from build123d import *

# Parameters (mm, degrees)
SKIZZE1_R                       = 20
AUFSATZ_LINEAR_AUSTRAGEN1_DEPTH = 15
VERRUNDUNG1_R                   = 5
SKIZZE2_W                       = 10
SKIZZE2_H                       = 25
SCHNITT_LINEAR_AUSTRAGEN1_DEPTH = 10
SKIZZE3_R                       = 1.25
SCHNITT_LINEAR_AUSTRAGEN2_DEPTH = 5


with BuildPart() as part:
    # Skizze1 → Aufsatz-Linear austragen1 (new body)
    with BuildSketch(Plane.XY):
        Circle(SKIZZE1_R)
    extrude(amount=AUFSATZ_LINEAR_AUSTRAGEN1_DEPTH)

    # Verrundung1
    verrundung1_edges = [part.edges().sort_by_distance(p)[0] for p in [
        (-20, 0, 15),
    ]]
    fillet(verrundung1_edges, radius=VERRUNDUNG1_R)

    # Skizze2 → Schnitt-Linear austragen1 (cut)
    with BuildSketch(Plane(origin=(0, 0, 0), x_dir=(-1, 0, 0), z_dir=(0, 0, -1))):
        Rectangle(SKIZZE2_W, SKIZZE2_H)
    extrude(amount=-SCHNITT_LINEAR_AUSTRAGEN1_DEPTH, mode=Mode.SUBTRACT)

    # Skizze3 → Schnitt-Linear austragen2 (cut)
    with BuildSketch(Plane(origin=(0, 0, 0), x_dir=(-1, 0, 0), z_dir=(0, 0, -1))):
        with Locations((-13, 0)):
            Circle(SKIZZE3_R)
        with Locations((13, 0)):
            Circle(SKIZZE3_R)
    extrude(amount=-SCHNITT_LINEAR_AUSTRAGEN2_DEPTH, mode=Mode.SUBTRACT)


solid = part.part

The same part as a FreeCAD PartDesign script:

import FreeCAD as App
import Part
import Sketcher
from FreeCAD import Vector


def edges_at(feature, points):
    """Names of the edges that pass closest to the given points."""
    edges = feature.Shape.Edges
    near = lambda p: min(range(len(edges)), key=lambda i: edges[i].distToShape(Part.Vertex(*p))[0])
    return sorted({f"Edge{near(p) + 1}" for p in points})


def add_polygon(sketch, points):
    """Adds a closed chain of lines whose ends are joined by coincident constraints."""
    first, n = sketch.GeometryCount, len(points)
    for a, b in zip(points, points[1:] + points[:1]):
        sketch.addGeometry(Part.LineSegment(App.Vector(*a, 0), App.Vector(*b, 0)), False)
    for i in range(n):
        sketch.addConstraint(Sketcher.Constraint("Coincident", first + i, 2, first + (i + 1) % n, 1))

doc = App.newDocument("Part")
body = doc.addObject("PartDesign::Body", "Body")

# Sketch on XY plane
sketch1 = body.newObject("Sketcher::SketchObject", "Sketch")
sketch1.AttachmentSupport = (doc.getObject("XY_Plane"), [""])
sketch1.MapMode = "FlatFace"
sketch1.addGeometry(Part.Circle(Vector(0, 0, 0), Vector(0, 0, 1), 20), False)
sketch1.addConstraint(Sketcher.Constraint("Coincident", 0, 3, -1, 1))
sketch1.addConstraint(Sketcher.Constraint("Diameter", 0, 40.0))
pad1 = body.newObject("PartDesign::Pad", "Pad")
pad1.Profile = sketch1
pad1.Length = 15
doc.recompute()

fillet = body.newObject("PartDesign::Fillet", "Fillet")
fillet.Base = (pad1, edges_at(pad1, [(-20, 0, 15)]))
fillet.Radius = 5

# Sketch on XY plane
sketch2 = body.newObject("Sketcher::SketchObject", "Sketch001")
sketch2.AttachmentSupport = (doc.getObject("XY_Plane"), [""])
sketch2.MapMode = "FlatFace"
add_polygon(sketch2, [(5, 12.5), (5, -12.5), (-5, -12.5), (-5, 12.5)])  # lines 0-3
sketch2.addConstraint(Sketcher.Constraint("Vertical", 0))
sketch2.addConstraint(Sketcher.Constraint("Horizontal", 1))
sketch2.addConstraint(Sketcher.Constraint("Vertical", 2))
sketch2.addConstraint(Sketcher.Constraint("Horizontal", 3))
sketch2.addConstraint(Sketcher.Constraint("Symmetric", 0, 2, 2, 2, -1, 1))
sketch2.addConstraint(Sketcher.Constraint("DistanceX", 1, 2, 1, 1, 10.0))
sketch2.addConstraint(Sketcher.Constraint("DistanceY", 0, 2, 0, 1, 25.0))
pocket1 = body.newObject("PartDesign::Pocket", "Pocket")
pocket1.Profile = sketch2
pocket1.Length = 10
pocket1.Reversed = True

# Sketch on XY plane
sketch3 = body.newObject("Sketcher::SketchObject", "Sketch002")
sketch3.AttachmentSupport = (doc.getObject("XY_Plane"), [""])
sketch3.MapMode = "FlatFace"
sketch3.addGeometry(Part.Circle(Vector(13, 0, 0), Vector(0, 0, 1), 1.25), False)
sketch3.addGeometry(Part.Circle(Vector(-13, 0, 0), Vector(0, 0, 1), 1.25), False)
sketch3.addConstraint(Sketcher.Constraint("Equal", 0, 1))
sketch3.addConstraint(Sketcher.Constraint("Symmetric", 0, 3, 1, 3, -1, 1))
sketch3.addConstraint(Sketcher.Constraint("PointOnObject", 0, 3, -1))
sketch3.addConstraint(Sketcher.Constraint("Diameter", 0, 2.5))
sketch3.addConstraint(Sketcher.Constraint("DistanceX", -1, 1, 0, 3, 13.0))
pocket2 = body.newObject("PartDesign::Pocket", "Pocket001")
pocket2.Profile = sketch3
pocket2.Length = 5
pocket2.Reversed = True

doc.recompute()
